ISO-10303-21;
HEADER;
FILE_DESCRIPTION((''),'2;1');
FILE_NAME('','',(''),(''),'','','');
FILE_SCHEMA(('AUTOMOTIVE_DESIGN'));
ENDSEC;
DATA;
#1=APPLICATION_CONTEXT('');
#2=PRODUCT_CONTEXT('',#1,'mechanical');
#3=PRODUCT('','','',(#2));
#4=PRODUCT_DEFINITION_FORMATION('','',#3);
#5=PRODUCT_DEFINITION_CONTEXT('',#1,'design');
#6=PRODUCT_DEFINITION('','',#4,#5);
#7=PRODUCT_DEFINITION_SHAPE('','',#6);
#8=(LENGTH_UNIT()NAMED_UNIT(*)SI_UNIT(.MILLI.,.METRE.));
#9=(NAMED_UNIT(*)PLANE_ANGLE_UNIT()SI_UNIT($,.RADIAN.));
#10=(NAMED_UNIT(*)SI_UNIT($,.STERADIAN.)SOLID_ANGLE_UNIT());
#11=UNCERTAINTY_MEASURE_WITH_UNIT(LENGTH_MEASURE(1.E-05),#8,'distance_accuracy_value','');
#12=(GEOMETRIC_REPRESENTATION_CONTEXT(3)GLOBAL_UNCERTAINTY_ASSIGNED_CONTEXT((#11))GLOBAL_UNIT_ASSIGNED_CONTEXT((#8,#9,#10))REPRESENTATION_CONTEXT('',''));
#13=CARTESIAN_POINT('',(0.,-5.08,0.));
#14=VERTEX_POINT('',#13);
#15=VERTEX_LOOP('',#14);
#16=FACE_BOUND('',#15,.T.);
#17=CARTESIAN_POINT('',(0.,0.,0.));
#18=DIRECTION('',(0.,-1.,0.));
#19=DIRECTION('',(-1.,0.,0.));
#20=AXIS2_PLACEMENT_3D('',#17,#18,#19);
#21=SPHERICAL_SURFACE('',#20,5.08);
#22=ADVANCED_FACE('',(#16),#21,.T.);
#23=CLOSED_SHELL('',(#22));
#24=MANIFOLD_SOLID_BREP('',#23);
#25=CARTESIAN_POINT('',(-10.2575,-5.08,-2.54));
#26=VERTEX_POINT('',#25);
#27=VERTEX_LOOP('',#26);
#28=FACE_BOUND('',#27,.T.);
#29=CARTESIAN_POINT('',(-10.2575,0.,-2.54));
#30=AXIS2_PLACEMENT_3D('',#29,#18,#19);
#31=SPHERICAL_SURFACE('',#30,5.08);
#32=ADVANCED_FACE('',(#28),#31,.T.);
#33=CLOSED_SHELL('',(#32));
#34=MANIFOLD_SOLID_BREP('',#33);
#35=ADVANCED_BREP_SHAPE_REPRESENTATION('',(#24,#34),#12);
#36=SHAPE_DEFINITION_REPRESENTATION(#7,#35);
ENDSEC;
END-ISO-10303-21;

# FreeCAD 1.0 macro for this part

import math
import FreeCAD as App
import Part
import Sketcher
Q = App.Units.Quantity

doc = App.newDocument("Part")
body = doc.addObject("PartDesign::Body", "Body")
body.AllowCompound = True

# Sketch on XY plane
sketch1 = body.newObject("Sketcher::SketchObject", "Sketch")
sketch1.AttachmentSupport = (doc.getObject("XY_Plane"), [""])
sketch1.MapMode = "FlatFace"
sketch1.addGeometry([
    Part.LineSegment(App.Vector(0, -5, 0), App.Vector(0, 5, 0)),
    Part.ArcOfCircle(Part.Circle(App.Vector(0, 0, 0), App.Vector(0, 0, 1), 5), math.radians(90), math.radians(270)),
], False)
sketch1.addConstraint([
    Sketcher.Constraint("Coincident", 0, 1, 1, 2),
    Sketcher.Constraint("Coincident", 1, 1, 0, 2),
    Sketcher.Constraint("Vertical", 0),
    Sketcher.Constraint("Coincident", 1, 3, -1, 1),
    Sketcher.Constraint("PointOnObject", 0, 1, -2),
    Sketcher.Constraint("Radius", 1, Q("0.2 in")),
])
revolution = body.newObject("PartDesign::Revolution", "Revolution")
revolution.Profile = sketch1
revolution.ReferenceAxis = (sketch1, ["V_Axis"])
revolution.Angle = 360

# Sketch on XY plane
sketch2 = body.newObject("Sketcher::SketchObject", "Sketch001")
sketch2.AttachmentSupport = (doc.getObject("XY_Plane"), [""])
sketch2.MapMode = "FlatFace"
sketch2.AttachmentOffset = App.Placement(App.Vector(0, 0, -0.1 * 25.4), App.Rotation())
sketch2.addGeometry([
    Part.LineSegment(App.Vector(-10, -5, 0), App.Vector(-10, 5, 0)),
    Part.ArcOfCircle(Part.Circle(App.Vector(-10, 0, 0), App.Vector(0, 0, 1), 5), math.radians(90), math.radians(270)),
], False)
sketch2.addGeometry(Part.LineSegment(App.Vector(-10, 5, 0), App.Vector(-10, -5, 0)), True)  # axis
sketch2.addConstraint([
    Sketcher.Constraint("Coincident", 0, 1, 1, 2),
    Sketcher.Constraint("Coincident", 1, 1, 0, 2),
    Sketcher.Constraint("Vertical", 0),
    Sketcher.Constraint("Vertical", 2),
    Sketcher.Constraint("Coincident", 2, 1, 1, 1),
    Sketcher.Constraint("PointOnObject", 1, 3, -1),
    Sketcher.Constraint("Vertical", 1, 3, 0, 1),
    Sketcher.Constraint("Equal", 0, 2),
    Sketcher.Constraint("Radius", 1, Q("0.2 in")),
    Sketcher.Constraint("DistanceX", 1, 3, -1, 1, Q("10.2575 mm")),
])
revolution2 = body.newObject("PartDesign::Revolution", "Revolution001")
revolution2.Profile = sketch2
revolution2.ReferenceAxis = (sketch2, ["Axis0"])
revolution2.Angle = 360

doc.recompute()
